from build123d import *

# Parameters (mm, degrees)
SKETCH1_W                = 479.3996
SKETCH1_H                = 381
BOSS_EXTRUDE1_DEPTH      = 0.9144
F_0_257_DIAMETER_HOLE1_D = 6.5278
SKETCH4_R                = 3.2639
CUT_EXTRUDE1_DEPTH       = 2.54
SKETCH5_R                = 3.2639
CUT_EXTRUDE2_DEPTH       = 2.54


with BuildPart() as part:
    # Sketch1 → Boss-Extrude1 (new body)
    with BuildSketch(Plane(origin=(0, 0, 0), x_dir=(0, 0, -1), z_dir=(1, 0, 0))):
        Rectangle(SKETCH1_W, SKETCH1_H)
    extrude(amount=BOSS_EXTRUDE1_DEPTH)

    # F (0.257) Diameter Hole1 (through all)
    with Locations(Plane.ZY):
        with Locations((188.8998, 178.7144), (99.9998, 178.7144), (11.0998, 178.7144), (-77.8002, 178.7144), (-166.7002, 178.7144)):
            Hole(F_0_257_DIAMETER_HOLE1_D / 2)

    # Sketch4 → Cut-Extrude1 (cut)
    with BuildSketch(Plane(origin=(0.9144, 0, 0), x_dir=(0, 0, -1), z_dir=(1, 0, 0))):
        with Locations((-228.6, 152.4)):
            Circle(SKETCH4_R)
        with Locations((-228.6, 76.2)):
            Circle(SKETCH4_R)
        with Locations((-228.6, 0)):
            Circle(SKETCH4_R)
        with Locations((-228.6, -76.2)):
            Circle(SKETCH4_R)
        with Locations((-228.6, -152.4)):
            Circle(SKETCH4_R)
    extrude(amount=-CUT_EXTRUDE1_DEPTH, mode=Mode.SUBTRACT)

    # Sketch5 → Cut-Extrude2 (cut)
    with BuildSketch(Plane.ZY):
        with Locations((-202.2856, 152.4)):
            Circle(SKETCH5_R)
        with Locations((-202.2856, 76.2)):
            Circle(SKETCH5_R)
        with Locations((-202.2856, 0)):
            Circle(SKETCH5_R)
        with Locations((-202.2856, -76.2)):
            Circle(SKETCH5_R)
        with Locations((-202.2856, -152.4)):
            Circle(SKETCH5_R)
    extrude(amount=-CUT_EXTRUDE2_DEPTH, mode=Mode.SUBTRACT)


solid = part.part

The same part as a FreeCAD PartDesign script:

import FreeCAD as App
import Part
import Sketcher
Q = App.Units.Quantity

doc = App.newDocument("Part")
body = doc.addObject("PartDesign::Body", "Body")

# Sketch on YZ plane
sketch1 = body.newObject("Sketcher::SketchObject", "Sketch")
sketch1.AttachmentSupport = (doc.getObject("YZ_Plane"), [""])
sketch1.MapMode = "FlatFace"
sketch1.addGeometry(Part.LineSegment(App.Vector(190, 240, 0), App.Vector(-190, 240, 0)), False)
sketch1.addGeometry(Part.LineSegment(App.Vector(-190, 240, 0), App.Vector(-190, -240, 0)), False)
sketch1.addGeometry(Part.LineSegment(App.Vector(-190, -240, 0), App.Vector(190, -240, 0)), False)
sketch1.addGeometry(Part.LineSegment(App.Vector(190, -240, 0), App.Vector(190, 240, 0)), False)
sketch1.addConstraint(Sketcher.Constraint("Coincident", 0, 2, 1, 1))
sketch1.addConstraint(Sketcher.Constraint("Coincident", 1, 2, 2, 1))
sketch1.addConstraint(Sketcher.Constraint("Coincident", 2, 2, 3, 1))
sketch1.addConstraint(Sketcher.Constraint("Coincident", 3, 2, 0, 1))
sketch1.addConstraint(Sketcher.Constraint("Horizontal", 0))
sketch1.addConstraint(Sketcher.Constraint("Vertical", 1))
sketch1.addConstraint(Sketcher.Constraint("Horizontal", 2))
sketch1.addConstraint(Sketcher.Constraint("Vertical", 3))
sketch1.addConstraint(Sketcher.Constraint("Symmetric", 0, 2, 2, 2, -1, 1))
sketch1.addConstraint(Sketcher.Constraint("DistanceX", 0, 2, 0, 1, Q("15 in")))
sketch1.addConstraint(Sketcher.Constraint("DistanceY", 1, 2, 1, 1, Q("18.874 in")))
pad1 = body.newObject("PartDesign::Pad", "Pad")
pad1.Profile = sketch1
pad1.Length = Q("0.036 in")

# Sketch on YZ plane
sketch2 = body.newObject("Sketcher::SketchObject", "Sketch001")
sketch2.AttachmentSupport = (doc.getObject("YZ_Plane"), [""])
sketch2.MapMode = "FlatFace"
sketch2.addGeometry(Part.Circle(App.Vector(178.7, 188.9, 0), App.Vector(0, 0, 1), 3.3), False)
sketch2.addGeometry(Part.Circle(App.Vector(178.7, 100, 0), App.Vector(0, 0, 1), 3.3), False)
sketch2.addGeometry(Part.Circle(App.Vector(178.7, 11.1, 0), App.Vector(0, 0, 1), 3.3), False)
sketch2.addGeometry(Part.Circle(App.Vector(178.7, -77.8, 0), App.Vector(0, 0, 1), 3.3), False)
sketch2.addGeometry(Part.Circle(App.Vector(178.7, -166.7, 0), App.Vector(0, 0, 1), 3.3), False)
sketch2.addConstraint(Sketcher.Constraint("Equal", 0, 1))
sketch2.addConstraint(Sketcher.Constraint("Equal", 1, 2))
sketch2.addConstraint(Sketcher.Constraint("Equal", 2, 3))
sketch2.addConstraint(Sketcher.Constraint("Equal", 3, 4))
sketch2.addConstraint(Sketcher.Constraint("Vertical", 0, 3, 1, 3))
sketch2.addConstraint(Sketcher.Constraint("Vertical", 1, 3, 2, 3))
sketch2.addConstraint(Sketcher.Constraint("Vertical", 2, 3, 3, 3))
sketch2.addConstraint(Sketcher.Constraint("Vertical", 3, 3, 4, 3))
sketch2.addConstraint(Sketcher.Constraint("Diameter", 0, Q("0.257 in")))
sketch2.addConstraint(Sketcher.Constraint("DistanceY", 2, 3, 0, 3, Q("7 in")))
sketch2.addConstraint(Sketcher.Constraint("DistanceY", 3, 3, 1, 3, Q("7 in")))
sketch2.addConstraint(Sketcher.Constraint("DistanceY", 4, 3, 2, 3, Q("7 in")))
sketch2.addConstraint(Sketcher.Constraint("DistanceY", 1, 3, 0, 3, Q("3.5 in")))
sketch2.addConstraint(Sketcher.Constraint("DistanceX", -1, 1, 0, 3, Q("7.036 in")))
sketch2.addConstraint(Sketcher.Constraint("DistanceY", -1, 1, 0, 3, Q("7.437 in")))
doc.recompute()
hole = body.newObject("PartDesign::Hole", "Hole")
hole.Profile = sketch2
hole.ThreadType = "None"
hole.Diameter = Q("0.257 in")
hole.DepthType = "ThroughAll"
hole.Reversed = True

# Sketch on YZ plane
sketch3 = body.newObject("Sketcher::SketchObject", "Sketch002")
sketch3.AttachmentSupport = (doc.getObject("YZ_Plane"), [""])
sketch3.MapMode = "FlatFace"
sketch3.AttachmentOffset = App.Placement(App.Vector(0, 0, 0.036 * 25.4), App.Rotation())
sketch3.addGeometry(Part.Circle(App.Vector(152.4, 228.6, 0), App.Vector(0, 0, 1), 3.3), False)
sketch3.addGeometry(Part.Circle(App.Vector(76.2, 228.6, 0), App.Vector(0, 0, 1), 3.3), False)
sketch3.addGeometry(Part.Circle(App.Vector(0, 228.6, 0), App.Vector(0, 0, 1), 3.3), False)
sketch3.addGeometry(Part.Circle(App.Vector(-76.2, 228.6, 0), App.Vector(0, 0, 1), 3.3), False)
sketch3.addGeometry(Part.Circle(App.Vector(-152.4, 228.6, 0), App.Vector(0, 0, 1), 3.3), False)
sketch3.addConstraint(Sketcher.Constraint("Equal", 0, 1))
sketch3.addConstraint(Sketcher.Constraint("Equal", 1, 2))
sketch3.addConstraint(Sketcher.Constraint("Equal", 2, 3))
sketch3.addConstraint(Sketcher.Constraint("Equal", 3, 4))
sketch3.addConstraint(Sketcher.Constraint("Symmetric", 1, 3, 3, 3, -2))
sketch3.addConstraint(Sketcher.Constraint("Symmetric", 0, 3, 4, 3, -2))
sketch3.addConstraint(Sketcher.Constraint("PointOnObject", 2, 3, -2))
sketch3.addConstraint(Sketcher.Constraint("Horizontal", 0, 3, 1, 3))
sketch3.addConstraint(Sketcher.Constraint("Horizontal", 1, 3, 2, 3))
sketch3.addConstraint(Sketcher.Constraint("Diameter", 0, Q("0.257 in")))
sketch3.addConstraint(Sketcher.Constraint("DistanceX", -1, 1, 0, 3, Q("6 in")))
sketch3.addConstraint(Sketcher.Constraint("DistanceY", -1, 1, 0, 3, Q("9 in")))
sketch3.addConstraint(Sketcher.Constraint("DistanceX", -1, 1, 1, 3, Q("3 in")))
pocket1 = body.newObject("PartDesign::Pocket", "Pocket")
pocket1.Profile = sketch3
pocket1.Length = Q("0.1 in")

# Sketch on YZ plane
sketch4 = body.newObject("Sketcher::SketchObject", "Sketch003")
sketch4.AttachmentSupport = (doc.getObject("YZ_Plane"), [""])
sketch4.MapMode = "FlatFace"
sketch4.addGeometry(Part.Circle(App.Vector(152.4, -202.3, 0), App.Vector(0, 0, 1), 3.3), False)
sketch4.addGeometry(Part.Circle(App.Vector(76.2, -202.3, 0), App.Vector(0, 0, 1), 3.3), False)
sketch4.addGeometry(Part.Circle(App.Vector(0, -202.3, 0), App.Vector(0, 0, 1), 3.3), False)
sketch4.addGeometry(Part.Circle(App.Vector(-76.2, -202.3, 0), App.Vector(0, 0, 1), 3.3), False)
sketch4.addGeometry(Part.Circle(App.Vector(-152.4, -202.3, 0), App.Vector(0, 0, 1), 3.3), False)
sketch4.addConstraint(Sketcher.Constraint("Equal", 0, 1))
sketch4.addConstraint(Sketcher.Constraint("Equal", 1, 2))
sketch4.addConstraint(Sketcher.Constraint("Equal", 2, 3))
sketch4.addConstraint(Sketcher.Constraint("Equal", 3, 4))
sketch4.addConstraint(Sketcher.Constraint("Symmetric", 1, 3, 3, 3, -2))
sketch4.addConstraint(Sketcher.Constraint("Symmetric", 0, 3, 4, 3, -2))
sketch4.addConstraint(Sketcher.Constraint("PointOnObject", 2, 3, -2))
sketch4.addConstraint(Sketcher.Constraint("Horizontal", 0, 3, 1, 3))
sketch4.addConstraint(Sketcher.Constraint("Horizontal", 1, 3, 2, 3))
sketch4.addConstraint(Sketcher.Constraint("Diameter", 0, Q("0.257 in")))
sketch4.addConstraint(Sketcher.Constraint("DistanceX", -1, 1, 0, 3, Q("6 in")))
sketch4.addConstraint(Sketcher.Constraint("DistanceX", -1, 1, 1, 3, Q("3 in")))
sketch4.addConstraint(Sketcher.Constraint("DistanceY", 0, 3, -1, 1, Q("7.964 in")))
pocket2 = body.newObject("PartDesign::Pocket", "Pocket001")
pocket2.Profile = sketch4
pocket2.Length = Q("0.1 in")
pocket2.Reversed = True

doc.recompute()
